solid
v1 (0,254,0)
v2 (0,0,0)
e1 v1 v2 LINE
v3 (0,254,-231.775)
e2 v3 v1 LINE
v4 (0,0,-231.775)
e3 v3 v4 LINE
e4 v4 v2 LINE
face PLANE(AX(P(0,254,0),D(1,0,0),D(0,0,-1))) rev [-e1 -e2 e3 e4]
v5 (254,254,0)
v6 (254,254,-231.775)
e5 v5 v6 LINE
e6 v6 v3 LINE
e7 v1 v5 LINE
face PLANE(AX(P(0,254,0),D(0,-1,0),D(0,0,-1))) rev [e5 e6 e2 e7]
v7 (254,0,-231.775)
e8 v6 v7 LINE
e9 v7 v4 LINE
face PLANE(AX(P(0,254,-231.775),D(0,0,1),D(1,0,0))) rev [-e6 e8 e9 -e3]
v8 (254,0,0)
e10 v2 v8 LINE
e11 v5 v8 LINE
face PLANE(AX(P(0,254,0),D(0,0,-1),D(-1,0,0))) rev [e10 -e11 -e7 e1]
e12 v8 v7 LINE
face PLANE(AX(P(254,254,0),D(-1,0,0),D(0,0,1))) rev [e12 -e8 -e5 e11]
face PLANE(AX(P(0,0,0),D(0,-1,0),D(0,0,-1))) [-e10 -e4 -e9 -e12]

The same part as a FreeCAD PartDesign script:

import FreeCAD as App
import Part
import Sketcher
Q = App.Units.Quantity


def add_polygon(sketch, points):
    """Adds a closed chain of lines whose ends are joined by coincident constraints."""
    first, n = sketch.GeometryCount, len(points)
    for a, b in zip(points, points[1:] + points[:1]):
        sketch.addGeometry(Part.LineSegment(App.Vector(*a, 0), App.Vector(*b, 0)), False)
    for i in range(n):
        sketch.addConstraint(Sketcher.Constraint("Coincident", first + i, 2, first + (i + 1) % n, 1))

doc = App.newDocument("Part")
body = doc.addObject("PartDesign::Body", "Body")

sketch1 = body.newObject("Sketcher::SketchObject", "Sketch")
sketch1.AttachmentSupport = (doc.getObject("XZ_Plane"), [""])
sketch1.MapMode = "FlatFace"
add_polygon(sketch1, [(0, -232), (0, 0), (254, 0), (254, -232)])
sketch1.addConstraint(Sketcher.Constraint("Vertical", 0))
sketch1.addConstraint(Sketcher.Constraint("Horizontal", 1))
sketch1.addConstraint(Sketcher.Constraint("Vertical", 2))
sketch1.addConstraint(Sketcher.Constraint("Horizontal", 3))
sketch1.addConstraint(Sketcher.Constraint("Coincident", 0, 2, -1, 1))
sketch1.addConstraint(Sketcher.Constraint("DistanceX", 1, 1, 1, 2, Q("10 in")))
sketch1.addConstraint(Sketcher.Constraint("DistanceY", 0, 1, 0, 2, Q("9.125 in")))
pad1 = body.newObject("PartDesign::Pad", "Pad")
pad1.Profile = sketch1
pad1.Length = Q("10 in")
pad1.Reversed = True

doc.recompute()
